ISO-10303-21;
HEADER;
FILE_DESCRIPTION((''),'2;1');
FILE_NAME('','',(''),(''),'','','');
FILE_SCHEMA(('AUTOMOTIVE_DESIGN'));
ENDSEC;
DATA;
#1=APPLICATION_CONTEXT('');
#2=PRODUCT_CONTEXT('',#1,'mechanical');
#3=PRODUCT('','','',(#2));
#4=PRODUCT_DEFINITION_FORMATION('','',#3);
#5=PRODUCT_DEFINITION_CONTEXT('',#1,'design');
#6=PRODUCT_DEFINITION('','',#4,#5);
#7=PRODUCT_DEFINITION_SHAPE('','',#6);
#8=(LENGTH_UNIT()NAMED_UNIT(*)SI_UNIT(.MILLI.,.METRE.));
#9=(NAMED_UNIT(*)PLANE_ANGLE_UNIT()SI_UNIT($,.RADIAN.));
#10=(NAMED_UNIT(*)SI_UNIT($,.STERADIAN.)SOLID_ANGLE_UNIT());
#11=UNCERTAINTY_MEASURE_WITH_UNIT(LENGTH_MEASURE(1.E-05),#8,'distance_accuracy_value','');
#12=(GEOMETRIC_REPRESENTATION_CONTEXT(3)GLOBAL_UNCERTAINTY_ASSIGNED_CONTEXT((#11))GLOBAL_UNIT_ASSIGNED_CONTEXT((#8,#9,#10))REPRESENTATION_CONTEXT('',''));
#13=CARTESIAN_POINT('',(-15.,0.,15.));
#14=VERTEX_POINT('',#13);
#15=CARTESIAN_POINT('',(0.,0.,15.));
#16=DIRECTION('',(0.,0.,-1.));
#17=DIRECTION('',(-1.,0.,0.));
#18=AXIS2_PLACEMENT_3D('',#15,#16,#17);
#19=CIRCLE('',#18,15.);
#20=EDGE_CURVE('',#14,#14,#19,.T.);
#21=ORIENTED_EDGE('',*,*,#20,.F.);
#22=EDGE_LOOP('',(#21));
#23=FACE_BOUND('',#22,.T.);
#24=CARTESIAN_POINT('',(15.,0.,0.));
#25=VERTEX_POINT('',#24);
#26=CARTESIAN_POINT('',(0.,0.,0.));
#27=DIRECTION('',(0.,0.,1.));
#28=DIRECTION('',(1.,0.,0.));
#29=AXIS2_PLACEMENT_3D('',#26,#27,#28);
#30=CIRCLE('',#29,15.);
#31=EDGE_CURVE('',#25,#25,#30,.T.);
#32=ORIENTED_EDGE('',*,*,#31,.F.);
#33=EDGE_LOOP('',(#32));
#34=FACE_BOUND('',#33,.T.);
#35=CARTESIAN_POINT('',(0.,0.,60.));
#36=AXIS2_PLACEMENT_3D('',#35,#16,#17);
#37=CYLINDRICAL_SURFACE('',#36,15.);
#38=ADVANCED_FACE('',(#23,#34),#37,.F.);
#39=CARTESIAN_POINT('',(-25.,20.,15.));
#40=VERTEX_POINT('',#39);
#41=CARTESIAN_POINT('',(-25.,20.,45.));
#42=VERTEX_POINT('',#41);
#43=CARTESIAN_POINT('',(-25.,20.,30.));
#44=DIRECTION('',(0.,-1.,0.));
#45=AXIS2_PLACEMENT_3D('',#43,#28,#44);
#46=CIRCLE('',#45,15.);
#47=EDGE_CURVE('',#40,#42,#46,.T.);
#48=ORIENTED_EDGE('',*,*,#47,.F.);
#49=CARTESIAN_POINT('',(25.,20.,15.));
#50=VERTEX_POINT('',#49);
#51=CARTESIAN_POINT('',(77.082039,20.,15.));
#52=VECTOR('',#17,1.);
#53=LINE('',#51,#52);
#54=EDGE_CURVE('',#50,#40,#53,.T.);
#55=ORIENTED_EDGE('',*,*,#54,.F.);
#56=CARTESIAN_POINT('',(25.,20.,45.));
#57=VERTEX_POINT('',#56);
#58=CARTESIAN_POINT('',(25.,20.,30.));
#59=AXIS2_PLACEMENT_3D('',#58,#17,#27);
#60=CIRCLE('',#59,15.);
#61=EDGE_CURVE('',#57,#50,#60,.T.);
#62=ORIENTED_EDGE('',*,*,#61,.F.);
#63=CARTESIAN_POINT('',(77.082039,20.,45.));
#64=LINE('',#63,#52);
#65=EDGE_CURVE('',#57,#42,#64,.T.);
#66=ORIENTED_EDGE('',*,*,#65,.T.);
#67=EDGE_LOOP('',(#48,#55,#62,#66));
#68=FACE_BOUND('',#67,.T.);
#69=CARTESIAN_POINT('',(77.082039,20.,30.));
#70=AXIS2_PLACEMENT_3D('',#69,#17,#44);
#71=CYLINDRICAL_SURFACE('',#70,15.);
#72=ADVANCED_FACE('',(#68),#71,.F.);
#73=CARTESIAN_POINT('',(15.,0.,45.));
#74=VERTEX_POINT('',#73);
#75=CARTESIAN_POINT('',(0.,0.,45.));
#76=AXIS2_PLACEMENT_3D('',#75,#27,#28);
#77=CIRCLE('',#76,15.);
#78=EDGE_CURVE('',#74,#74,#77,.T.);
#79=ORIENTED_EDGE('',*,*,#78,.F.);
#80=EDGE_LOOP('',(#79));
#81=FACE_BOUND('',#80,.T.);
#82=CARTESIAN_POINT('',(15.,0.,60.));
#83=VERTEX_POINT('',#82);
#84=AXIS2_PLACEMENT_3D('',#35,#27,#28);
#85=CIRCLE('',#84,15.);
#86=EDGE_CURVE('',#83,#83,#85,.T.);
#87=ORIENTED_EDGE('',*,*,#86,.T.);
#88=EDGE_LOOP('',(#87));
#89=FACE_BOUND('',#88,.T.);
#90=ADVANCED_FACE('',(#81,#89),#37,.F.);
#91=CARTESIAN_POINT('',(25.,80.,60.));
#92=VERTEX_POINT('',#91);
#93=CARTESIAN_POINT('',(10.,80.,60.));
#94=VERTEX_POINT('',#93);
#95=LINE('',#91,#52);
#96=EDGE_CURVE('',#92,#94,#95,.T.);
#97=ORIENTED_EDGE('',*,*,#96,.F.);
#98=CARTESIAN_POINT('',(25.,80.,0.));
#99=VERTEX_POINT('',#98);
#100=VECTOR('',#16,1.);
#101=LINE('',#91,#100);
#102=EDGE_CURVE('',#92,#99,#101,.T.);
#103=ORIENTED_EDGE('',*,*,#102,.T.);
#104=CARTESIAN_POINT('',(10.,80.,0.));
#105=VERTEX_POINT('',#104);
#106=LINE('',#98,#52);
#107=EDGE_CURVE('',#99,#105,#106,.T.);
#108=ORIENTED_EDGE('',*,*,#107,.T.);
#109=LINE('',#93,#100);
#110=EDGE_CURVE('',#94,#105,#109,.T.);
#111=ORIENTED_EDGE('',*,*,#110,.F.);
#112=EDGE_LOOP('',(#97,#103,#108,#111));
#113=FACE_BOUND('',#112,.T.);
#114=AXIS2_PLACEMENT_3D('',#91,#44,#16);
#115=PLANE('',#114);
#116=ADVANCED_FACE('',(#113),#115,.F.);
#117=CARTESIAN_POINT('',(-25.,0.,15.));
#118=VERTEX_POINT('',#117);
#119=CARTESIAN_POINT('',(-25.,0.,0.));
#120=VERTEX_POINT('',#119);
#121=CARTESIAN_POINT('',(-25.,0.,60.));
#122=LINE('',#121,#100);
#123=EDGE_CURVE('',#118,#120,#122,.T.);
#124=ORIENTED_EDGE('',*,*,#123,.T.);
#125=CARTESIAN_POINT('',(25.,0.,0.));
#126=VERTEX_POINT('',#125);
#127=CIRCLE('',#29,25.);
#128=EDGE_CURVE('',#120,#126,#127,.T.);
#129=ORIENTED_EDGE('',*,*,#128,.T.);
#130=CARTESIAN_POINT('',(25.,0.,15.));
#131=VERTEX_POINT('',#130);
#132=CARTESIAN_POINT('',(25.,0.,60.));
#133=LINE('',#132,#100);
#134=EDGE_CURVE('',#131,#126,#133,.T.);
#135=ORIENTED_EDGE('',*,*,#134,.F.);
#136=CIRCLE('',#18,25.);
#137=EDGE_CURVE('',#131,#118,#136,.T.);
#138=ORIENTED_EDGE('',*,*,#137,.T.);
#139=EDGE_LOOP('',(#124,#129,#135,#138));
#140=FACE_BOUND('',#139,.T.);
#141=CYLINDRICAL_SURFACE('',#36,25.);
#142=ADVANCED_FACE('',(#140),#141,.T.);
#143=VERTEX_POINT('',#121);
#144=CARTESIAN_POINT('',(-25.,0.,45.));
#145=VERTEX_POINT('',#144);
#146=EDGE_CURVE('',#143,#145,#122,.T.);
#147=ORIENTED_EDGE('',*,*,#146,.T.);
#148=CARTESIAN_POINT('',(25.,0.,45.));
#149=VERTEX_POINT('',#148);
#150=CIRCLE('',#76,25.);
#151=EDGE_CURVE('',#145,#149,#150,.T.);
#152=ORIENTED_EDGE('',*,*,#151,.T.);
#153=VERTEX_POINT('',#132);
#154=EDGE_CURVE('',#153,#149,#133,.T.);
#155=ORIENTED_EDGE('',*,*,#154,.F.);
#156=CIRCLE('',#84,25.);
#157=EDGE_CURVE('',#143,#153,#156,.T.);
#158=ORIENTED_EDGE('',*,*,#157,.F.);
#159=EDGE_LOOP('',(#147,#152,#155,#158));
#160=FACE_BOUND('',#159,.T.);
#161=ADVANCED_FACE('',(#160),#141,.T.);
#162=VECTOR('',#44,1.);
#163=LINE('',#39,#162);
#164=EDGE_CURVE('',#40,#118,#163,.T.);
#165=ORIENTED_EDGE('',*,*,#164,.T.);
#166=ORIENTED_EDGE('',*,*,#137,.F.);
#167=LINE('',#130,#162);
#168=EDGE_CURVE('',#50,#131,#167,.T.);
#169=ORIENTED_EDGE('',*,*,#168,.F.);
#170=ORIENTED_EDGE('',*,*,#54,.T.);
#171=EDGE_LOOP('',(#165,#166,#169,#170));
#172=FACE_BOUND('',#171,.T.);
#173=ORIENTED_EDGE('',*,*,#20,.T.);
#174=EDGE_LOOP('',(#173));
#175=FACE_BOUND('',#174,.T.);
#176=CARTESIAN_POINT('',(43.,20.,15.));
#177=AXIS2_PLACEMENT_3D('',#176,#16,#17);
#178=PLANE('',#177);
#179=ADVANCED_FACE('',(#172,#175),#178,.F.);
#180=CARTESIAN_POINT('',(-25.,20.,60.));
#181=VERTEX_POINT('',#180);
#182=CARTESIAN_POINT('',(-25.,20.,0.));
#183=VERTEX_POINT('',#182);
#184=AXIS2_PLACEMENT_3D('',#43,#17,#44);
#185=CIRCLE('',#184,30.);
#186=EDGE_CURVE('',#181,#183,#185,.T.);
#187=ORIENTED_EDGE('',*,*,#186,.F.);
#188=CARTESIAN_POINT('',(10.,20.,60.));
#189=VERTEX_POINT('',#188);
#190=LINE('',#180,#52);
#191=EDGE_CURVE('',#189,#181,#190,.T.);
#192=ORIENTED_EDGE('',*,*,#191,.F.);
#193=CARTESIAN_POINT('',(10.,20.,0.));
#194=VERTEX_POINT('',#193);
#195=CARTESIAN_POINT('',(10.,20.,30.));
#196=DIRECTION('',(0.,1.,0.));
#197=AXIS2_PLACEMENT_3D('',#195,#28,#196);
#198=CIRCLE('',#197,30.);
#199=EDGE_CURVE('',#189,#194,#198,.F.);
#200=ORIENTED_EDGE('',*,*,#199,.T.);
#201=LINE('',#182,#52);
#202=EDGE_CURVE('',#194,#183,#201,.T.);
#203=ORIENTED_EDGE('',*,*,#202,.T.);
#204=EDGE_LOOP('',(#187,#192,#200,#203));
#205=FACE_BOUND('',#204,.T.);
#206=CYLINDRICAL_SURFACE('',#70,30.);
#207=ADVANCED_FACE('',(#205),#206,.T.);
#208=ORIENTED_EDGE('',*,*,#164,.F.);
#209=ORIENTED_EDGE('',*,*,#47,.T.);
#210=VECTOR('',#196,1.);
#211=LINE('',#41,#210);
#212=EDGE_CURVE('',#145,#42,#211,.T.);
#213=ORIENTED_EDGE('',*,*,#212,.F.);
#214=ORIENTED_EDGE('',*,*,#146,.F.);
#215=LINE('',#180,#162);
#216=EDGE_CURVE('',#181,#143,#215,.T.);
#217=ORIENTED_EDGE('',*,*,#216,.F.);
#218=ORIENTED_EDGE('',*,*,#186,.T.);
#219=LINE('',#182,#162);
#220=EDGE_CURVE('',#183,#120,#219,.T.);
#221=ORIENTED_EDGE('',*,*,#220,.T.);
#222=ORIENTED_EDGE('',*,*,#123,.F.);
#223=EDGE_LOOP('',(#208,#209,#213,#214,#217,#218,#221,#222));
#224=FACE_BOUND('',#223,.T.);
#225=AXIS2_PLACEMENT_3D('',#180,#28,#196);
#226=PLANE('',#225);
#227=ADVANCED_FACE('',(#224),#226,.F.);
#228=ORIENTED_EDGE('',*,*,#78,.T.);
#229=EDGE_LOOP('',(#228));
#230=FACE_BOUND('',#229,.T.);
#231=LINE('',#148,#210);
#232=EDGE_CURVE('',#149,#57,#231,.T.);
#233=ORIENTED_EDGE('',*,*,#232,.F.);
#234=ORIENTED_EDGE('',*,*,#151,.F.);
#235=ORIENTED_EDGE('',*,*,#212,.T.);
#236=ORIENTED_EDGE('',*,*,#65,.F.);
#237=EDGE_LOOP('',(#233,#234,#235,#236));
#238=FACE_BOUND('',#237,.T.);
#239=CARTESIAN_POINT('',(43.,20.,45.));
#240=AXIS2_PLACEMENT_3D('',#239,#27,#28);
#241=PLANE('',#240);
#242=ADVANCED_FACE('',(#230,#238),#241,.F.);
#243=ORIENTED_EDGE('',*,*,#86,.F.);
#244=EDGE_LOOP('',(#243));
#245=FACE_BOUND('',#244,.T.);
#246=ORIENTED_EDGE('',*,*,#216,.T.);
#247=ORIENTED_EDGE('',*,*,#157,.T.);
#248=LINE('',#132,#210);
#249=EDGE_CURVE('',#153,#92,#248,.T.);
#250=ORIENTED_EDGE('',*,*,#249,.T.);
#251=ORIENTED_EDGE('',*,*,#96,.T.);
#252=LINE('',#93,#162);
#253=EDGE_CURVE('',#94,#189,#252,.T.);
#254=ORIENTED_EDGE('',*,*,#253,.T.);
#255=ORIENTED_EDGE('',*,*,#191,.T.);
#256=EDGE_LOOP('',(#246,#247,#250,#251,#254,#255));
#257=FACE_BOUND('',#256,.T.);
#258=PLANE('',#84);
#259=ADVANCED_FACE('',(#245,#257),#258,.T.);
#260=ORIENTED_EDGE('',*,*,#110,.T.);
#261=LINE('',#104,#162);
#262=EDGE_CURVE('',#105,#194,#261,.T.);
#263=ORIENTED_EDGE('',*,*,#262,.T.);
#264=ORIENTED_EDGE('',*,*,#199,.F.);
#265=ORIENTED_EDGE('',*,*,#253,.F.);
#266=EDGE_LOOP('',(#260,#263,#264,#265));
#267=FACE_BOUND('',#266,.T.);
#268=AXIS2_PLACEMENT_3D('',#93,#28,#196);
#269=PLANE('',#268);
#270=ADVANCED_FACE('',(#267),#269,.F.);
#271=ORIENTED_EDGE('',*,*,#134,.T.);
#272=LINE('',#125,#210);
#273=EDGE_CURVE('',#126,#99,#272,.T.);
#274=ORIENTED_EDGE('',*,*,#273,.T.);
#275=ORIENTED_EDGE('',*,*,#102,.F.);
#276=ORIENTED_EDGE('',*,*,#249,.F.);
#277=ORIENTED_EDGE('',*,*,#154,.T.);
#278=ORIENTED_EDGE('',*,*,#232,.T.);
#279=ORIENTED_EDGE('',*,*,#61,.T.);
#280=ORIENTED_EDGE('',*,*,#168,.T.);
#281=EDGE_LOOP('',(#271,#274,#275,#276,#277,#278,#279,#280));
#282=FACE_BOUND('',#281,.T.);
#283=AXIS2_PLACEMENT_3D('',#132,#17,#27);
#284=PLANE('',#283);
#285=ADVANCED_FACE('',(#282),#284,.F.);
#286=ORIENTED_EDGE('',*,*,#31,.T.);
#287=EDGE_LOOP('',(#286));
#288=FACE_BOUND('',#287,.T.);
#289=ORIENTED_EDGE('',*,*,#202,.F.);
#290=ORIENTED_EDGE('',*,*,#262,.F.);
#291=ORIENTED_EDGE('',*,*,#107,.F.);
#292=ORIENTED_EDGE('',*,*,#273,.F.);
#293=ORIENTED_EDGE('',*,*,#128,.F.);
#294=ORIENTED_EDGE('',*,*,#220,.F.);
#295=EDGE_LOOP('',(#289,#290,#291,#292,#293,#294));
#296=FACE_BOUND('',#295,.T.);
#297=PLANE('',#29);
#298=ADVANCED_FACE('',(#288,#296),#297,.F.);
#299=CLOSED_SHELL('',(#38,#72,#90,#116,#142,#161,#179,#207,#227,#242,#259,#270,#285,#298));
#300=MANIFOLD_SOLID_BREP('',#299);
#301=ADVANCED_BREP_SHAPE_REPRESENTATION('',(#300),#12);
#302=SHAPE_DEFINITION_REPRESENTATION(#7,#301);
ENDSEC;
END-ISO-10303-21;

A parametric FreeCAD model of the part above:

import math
import FreeCAD as App
import Part
import Sketcher
from FreeCAD import Vector

doc = App.newDocument("Part")
params = doc.addObject("Spreadsheet::Sheet", "Params")
for row, (alias, value) in enumerate([
    ("sketch1_diameter", "30 mm"),
    ("sketch1_radius", "25 mm"),
    ("sketch1_width", "15 mm"),
    ("sketch1_height", "80 mm"),
    ("sketch1_height2", "60 mm"),
    ("pad1_length", "60 mm"),
    ("sketch2_radius", "15 mm"),
    ("sketch2_radius2", "30 mm"),
    ("pad2_length", "35 mm"),
    ("sketch3_radius", "15 mm"),
    ("pocket1_length", "68 mm"),
], start=1):
    params.set(f"A{row}", alias)
    params.set(f"B{row}", "=" + value)
    params.setAlias(f"B{row}", alias)

body = doc.addObject("PartDesign::Body", "Body")

# Sketch on XY plane
sketch1 = body.newObject("Sketcher::SketchObject", "Sketch")
sketch1.AttachmentSupport = (doc.getObject("XY_Plane"), [""])
sketch1.MapMode = "FlatFace"
sketch1.addGeometry([
    Part.LineSegment(Vector(25, 0, 0), Vector(25, 80, 0)),  # 0
    Part.LineSegment(Vector(25, 80, 0), Vector(10, 80, 0)),  # 1
    Part.LineSegment(Vector(10, 80, 0), Vector(10, 20, 0)),  # 2
    Part.LineSegment(Vector(10, 20, 0), Vector(-25, 20, 0)),  # 3
    Part.LineSegment(Vector(-25, 20, 0), Vector(-25, 0, 0)),  # 4
    Part.ArcOfCircle(Part.Circle(Vector(0, 0, 0), Vector(0, 0, 1), 25), math.radians(180), math.radians(360)),  # 5
    Part.Circle(Vector(0, 0, 0), Vector(0, 0, 1), 15),  # 6
], False)
sketch1.addConstraint([
    Sketcher.Constraint("Coincident", 0, 2, 1, 1),
    Sketcher.Constraint("Coincident", 1, 2, 2, 1),
    Sketcher.Constraint("Coincident", 2, 2, 3, 1),
    Sketcher.Constraint("Coincident", 3, 2, 4, 1),
    Sketcher.Constraint("Tangent", 4, 2, 5, 1),
    Sketcher.Constraint("Tangent", 5, 2, 0, 1),
    Sketcher.Constraint("Vertical", 0),
    Sketcher.Constraint("Horizontal", 1),
    Sketcher.Constraint("Vertical", 2),
    Sketcher.Constraint("Horizontal", 3),
    Sketcher.Constraint("Vertical", 4),
    Sketcher.Constraint("Coincident", 5, 3, -1, 1),
    Sketcher.Constraint("Coincident", 6, 3, -1, 1),
    Sketcher.Constraint("Diameter", 6, 30.0),
    Sketcher.Constraint("Radius", 5, 25.0),
    Sketcher.Constraint("DistanceX", 1, 2, 1, 1, 15.0),
    Sketcher.Constraint("DistanceY", 0, 1, 0, 2, 80.0),
    Sketcher.Constraint("DistanceY", 2, 2, 2, 1, 60.0),
])
sketch1.setExpression("Constraints[13]", "Params.sketch1_diameter")
sketch1.setExpression("Constraints[14]", "Params.sketch1_radius")
sketch1.setExpression("Constraints[15]", "Params.sketch1_width")
sketch1.setExpression("Constraints[16]", "Params.sketch1_height")
sketch1.setExpression("Constraints[17]", "Params.sketch1_height2")
pad1 = body.newObject("PartDesign::Pad", "Pad")
pad1.Profile = sketch1
pad1.setExpression("Length", "Params.pad1_length")

# Sketch on YZ plane
sketch2 = body.newObject("Sketcher::SketchObject", "Sketch001")
sketch2.AttachmentSupport = (doc.getObject("YZ_Plane"), [""])
sketch2.MapMode = "FlatFace"
sketch2.AttachmentOffset = App.Placement(Vector(0, 0, -25), App.Rotation())
sketch2.addGeometry([
    Part.LineSegment(Vector(20, 0, 0), Vector(20, 15, 0)),
    Part.ArcOfCircle(Part.Circle(Vector(20, 30, 0), Vector(0, 0, 1), 15), math.radians(-90), math.radians(90)),
    Part.LineSegment(Vector(20, 45, 0), Vector(20, 60, 0)),
    Part.ArcOfCircle(Part.Circle(Vector(20, 30, 0), Vector(0, 0, 1), 30), math.radians(-90), math.radians(90)),
], False)
sketch2.addConstraint([
    Sketcher.Constraint("Coincident", 0, 2, 1, 1),
    Sketcher.Constraint("Coincident", 1, 2, 2, 1),
    Sketcher.Constraint("Coincident", 2, 2, 3, 2),
    Sketcher.Constraint("Coincident", 3, 1, 0, 1),
    Sketcher.Constraint("Vertical", 0),
    Sketcher.Constraint("Vertical", 2),
    Sketcher.Constraint("Coincident", 3, 3, 1, 3),
    Sketcher.Constraint("PointOnObject", 3, 1, -1),
    Sketcher.Constraint("Vertical", 3, 3, 0, 2),
    Sketcher.Constraint("Vertical", 0, 2, 1, 2),
    Sketcher.Constraint("Radius", 1, 15.0),
    Sketcher.Constraint("Radius", 3, 30.0),
    Sketcher.Constraint("DistanceX", -1, 1, 1, 3, 20.0),
])
sketch2.setExpression("Constraints[10]", "Params.sketch2_radius")
sketch2.setExpression("Constraints[11]", "Params.sketch2_radius2")
pad2 = body.newObject("PartDesign::Pad", "Pad001")
pad2.Profile = sketch2
pad2.setExpression("Length", "Params.pad2_length")

# Sketch on YZ plane
sketch3 = body.newObject("Sketcher::SketchObject", "Sketch002")
sketch3.AttachmentSupport = (doc.getObject("YZ_Plane"), [""])
sketch3.MapMode = "FlatFace"
sketch3.AttachmentOffset = App.Placement(Vector(0, 0, -25), App.Rotation())
sketch3.addGeometry([
    Part.LineSegment(Vector(20, 15, 0), Vector(-31, 15, 0)),
    Part.LineSegment(Vector(-31, 15, 0), Vector(-31, 45, 0)),
    Part.LineSegment(Vector(-31, 45, 0), Vector(20, 45, 0)),
    Part.ArcOfCircle(Part.Circle(Vector(20, 30, 0), Vector(0, 0, 1), 15), math.radians(-90), math.radians(90)),
], False)
sketch3.addConstraint([
    Sketcher.Constraint("Coincident", 0, 2, 1, 1),
    Sketcher.Constraint("Coincident", 1, 2, 2, 1),
    Sketcher.Constraint("Tangent", 2, 2, 3, 2),
    Sketcher.Constraint("Tangent", 3, 1, 0, 1),
    Sketcher.Constraint("Horizontal", 0),
    Sketcher.Constraint("Vertical", 1),
    Sketcher.Constraint("Horizontal", 2),
    Sketcher.Constraint("Radius", 3, 15.0),
    Sketcher.Constraint("DistanceX", -1, 1, 3, 3, 20.0),
    Sketcher.Constraint("DistanceY", -1, 1, 3, 3, 30.0),
    Sketcher.Constraint("DistanceX", 0, 2, 0, 1, 51.386315),
])
sketch3.setExpression("Constraints[7]", "Params.sketch3_radius")
pocket1 = body.newObject("PartDesign::Pocket", "Pocket")
pocket1.Profile = sketch3
pocket1.setExpression("Length", "Params.pocket1_length")
pocket1.Reversed = True

doc.recompute()
